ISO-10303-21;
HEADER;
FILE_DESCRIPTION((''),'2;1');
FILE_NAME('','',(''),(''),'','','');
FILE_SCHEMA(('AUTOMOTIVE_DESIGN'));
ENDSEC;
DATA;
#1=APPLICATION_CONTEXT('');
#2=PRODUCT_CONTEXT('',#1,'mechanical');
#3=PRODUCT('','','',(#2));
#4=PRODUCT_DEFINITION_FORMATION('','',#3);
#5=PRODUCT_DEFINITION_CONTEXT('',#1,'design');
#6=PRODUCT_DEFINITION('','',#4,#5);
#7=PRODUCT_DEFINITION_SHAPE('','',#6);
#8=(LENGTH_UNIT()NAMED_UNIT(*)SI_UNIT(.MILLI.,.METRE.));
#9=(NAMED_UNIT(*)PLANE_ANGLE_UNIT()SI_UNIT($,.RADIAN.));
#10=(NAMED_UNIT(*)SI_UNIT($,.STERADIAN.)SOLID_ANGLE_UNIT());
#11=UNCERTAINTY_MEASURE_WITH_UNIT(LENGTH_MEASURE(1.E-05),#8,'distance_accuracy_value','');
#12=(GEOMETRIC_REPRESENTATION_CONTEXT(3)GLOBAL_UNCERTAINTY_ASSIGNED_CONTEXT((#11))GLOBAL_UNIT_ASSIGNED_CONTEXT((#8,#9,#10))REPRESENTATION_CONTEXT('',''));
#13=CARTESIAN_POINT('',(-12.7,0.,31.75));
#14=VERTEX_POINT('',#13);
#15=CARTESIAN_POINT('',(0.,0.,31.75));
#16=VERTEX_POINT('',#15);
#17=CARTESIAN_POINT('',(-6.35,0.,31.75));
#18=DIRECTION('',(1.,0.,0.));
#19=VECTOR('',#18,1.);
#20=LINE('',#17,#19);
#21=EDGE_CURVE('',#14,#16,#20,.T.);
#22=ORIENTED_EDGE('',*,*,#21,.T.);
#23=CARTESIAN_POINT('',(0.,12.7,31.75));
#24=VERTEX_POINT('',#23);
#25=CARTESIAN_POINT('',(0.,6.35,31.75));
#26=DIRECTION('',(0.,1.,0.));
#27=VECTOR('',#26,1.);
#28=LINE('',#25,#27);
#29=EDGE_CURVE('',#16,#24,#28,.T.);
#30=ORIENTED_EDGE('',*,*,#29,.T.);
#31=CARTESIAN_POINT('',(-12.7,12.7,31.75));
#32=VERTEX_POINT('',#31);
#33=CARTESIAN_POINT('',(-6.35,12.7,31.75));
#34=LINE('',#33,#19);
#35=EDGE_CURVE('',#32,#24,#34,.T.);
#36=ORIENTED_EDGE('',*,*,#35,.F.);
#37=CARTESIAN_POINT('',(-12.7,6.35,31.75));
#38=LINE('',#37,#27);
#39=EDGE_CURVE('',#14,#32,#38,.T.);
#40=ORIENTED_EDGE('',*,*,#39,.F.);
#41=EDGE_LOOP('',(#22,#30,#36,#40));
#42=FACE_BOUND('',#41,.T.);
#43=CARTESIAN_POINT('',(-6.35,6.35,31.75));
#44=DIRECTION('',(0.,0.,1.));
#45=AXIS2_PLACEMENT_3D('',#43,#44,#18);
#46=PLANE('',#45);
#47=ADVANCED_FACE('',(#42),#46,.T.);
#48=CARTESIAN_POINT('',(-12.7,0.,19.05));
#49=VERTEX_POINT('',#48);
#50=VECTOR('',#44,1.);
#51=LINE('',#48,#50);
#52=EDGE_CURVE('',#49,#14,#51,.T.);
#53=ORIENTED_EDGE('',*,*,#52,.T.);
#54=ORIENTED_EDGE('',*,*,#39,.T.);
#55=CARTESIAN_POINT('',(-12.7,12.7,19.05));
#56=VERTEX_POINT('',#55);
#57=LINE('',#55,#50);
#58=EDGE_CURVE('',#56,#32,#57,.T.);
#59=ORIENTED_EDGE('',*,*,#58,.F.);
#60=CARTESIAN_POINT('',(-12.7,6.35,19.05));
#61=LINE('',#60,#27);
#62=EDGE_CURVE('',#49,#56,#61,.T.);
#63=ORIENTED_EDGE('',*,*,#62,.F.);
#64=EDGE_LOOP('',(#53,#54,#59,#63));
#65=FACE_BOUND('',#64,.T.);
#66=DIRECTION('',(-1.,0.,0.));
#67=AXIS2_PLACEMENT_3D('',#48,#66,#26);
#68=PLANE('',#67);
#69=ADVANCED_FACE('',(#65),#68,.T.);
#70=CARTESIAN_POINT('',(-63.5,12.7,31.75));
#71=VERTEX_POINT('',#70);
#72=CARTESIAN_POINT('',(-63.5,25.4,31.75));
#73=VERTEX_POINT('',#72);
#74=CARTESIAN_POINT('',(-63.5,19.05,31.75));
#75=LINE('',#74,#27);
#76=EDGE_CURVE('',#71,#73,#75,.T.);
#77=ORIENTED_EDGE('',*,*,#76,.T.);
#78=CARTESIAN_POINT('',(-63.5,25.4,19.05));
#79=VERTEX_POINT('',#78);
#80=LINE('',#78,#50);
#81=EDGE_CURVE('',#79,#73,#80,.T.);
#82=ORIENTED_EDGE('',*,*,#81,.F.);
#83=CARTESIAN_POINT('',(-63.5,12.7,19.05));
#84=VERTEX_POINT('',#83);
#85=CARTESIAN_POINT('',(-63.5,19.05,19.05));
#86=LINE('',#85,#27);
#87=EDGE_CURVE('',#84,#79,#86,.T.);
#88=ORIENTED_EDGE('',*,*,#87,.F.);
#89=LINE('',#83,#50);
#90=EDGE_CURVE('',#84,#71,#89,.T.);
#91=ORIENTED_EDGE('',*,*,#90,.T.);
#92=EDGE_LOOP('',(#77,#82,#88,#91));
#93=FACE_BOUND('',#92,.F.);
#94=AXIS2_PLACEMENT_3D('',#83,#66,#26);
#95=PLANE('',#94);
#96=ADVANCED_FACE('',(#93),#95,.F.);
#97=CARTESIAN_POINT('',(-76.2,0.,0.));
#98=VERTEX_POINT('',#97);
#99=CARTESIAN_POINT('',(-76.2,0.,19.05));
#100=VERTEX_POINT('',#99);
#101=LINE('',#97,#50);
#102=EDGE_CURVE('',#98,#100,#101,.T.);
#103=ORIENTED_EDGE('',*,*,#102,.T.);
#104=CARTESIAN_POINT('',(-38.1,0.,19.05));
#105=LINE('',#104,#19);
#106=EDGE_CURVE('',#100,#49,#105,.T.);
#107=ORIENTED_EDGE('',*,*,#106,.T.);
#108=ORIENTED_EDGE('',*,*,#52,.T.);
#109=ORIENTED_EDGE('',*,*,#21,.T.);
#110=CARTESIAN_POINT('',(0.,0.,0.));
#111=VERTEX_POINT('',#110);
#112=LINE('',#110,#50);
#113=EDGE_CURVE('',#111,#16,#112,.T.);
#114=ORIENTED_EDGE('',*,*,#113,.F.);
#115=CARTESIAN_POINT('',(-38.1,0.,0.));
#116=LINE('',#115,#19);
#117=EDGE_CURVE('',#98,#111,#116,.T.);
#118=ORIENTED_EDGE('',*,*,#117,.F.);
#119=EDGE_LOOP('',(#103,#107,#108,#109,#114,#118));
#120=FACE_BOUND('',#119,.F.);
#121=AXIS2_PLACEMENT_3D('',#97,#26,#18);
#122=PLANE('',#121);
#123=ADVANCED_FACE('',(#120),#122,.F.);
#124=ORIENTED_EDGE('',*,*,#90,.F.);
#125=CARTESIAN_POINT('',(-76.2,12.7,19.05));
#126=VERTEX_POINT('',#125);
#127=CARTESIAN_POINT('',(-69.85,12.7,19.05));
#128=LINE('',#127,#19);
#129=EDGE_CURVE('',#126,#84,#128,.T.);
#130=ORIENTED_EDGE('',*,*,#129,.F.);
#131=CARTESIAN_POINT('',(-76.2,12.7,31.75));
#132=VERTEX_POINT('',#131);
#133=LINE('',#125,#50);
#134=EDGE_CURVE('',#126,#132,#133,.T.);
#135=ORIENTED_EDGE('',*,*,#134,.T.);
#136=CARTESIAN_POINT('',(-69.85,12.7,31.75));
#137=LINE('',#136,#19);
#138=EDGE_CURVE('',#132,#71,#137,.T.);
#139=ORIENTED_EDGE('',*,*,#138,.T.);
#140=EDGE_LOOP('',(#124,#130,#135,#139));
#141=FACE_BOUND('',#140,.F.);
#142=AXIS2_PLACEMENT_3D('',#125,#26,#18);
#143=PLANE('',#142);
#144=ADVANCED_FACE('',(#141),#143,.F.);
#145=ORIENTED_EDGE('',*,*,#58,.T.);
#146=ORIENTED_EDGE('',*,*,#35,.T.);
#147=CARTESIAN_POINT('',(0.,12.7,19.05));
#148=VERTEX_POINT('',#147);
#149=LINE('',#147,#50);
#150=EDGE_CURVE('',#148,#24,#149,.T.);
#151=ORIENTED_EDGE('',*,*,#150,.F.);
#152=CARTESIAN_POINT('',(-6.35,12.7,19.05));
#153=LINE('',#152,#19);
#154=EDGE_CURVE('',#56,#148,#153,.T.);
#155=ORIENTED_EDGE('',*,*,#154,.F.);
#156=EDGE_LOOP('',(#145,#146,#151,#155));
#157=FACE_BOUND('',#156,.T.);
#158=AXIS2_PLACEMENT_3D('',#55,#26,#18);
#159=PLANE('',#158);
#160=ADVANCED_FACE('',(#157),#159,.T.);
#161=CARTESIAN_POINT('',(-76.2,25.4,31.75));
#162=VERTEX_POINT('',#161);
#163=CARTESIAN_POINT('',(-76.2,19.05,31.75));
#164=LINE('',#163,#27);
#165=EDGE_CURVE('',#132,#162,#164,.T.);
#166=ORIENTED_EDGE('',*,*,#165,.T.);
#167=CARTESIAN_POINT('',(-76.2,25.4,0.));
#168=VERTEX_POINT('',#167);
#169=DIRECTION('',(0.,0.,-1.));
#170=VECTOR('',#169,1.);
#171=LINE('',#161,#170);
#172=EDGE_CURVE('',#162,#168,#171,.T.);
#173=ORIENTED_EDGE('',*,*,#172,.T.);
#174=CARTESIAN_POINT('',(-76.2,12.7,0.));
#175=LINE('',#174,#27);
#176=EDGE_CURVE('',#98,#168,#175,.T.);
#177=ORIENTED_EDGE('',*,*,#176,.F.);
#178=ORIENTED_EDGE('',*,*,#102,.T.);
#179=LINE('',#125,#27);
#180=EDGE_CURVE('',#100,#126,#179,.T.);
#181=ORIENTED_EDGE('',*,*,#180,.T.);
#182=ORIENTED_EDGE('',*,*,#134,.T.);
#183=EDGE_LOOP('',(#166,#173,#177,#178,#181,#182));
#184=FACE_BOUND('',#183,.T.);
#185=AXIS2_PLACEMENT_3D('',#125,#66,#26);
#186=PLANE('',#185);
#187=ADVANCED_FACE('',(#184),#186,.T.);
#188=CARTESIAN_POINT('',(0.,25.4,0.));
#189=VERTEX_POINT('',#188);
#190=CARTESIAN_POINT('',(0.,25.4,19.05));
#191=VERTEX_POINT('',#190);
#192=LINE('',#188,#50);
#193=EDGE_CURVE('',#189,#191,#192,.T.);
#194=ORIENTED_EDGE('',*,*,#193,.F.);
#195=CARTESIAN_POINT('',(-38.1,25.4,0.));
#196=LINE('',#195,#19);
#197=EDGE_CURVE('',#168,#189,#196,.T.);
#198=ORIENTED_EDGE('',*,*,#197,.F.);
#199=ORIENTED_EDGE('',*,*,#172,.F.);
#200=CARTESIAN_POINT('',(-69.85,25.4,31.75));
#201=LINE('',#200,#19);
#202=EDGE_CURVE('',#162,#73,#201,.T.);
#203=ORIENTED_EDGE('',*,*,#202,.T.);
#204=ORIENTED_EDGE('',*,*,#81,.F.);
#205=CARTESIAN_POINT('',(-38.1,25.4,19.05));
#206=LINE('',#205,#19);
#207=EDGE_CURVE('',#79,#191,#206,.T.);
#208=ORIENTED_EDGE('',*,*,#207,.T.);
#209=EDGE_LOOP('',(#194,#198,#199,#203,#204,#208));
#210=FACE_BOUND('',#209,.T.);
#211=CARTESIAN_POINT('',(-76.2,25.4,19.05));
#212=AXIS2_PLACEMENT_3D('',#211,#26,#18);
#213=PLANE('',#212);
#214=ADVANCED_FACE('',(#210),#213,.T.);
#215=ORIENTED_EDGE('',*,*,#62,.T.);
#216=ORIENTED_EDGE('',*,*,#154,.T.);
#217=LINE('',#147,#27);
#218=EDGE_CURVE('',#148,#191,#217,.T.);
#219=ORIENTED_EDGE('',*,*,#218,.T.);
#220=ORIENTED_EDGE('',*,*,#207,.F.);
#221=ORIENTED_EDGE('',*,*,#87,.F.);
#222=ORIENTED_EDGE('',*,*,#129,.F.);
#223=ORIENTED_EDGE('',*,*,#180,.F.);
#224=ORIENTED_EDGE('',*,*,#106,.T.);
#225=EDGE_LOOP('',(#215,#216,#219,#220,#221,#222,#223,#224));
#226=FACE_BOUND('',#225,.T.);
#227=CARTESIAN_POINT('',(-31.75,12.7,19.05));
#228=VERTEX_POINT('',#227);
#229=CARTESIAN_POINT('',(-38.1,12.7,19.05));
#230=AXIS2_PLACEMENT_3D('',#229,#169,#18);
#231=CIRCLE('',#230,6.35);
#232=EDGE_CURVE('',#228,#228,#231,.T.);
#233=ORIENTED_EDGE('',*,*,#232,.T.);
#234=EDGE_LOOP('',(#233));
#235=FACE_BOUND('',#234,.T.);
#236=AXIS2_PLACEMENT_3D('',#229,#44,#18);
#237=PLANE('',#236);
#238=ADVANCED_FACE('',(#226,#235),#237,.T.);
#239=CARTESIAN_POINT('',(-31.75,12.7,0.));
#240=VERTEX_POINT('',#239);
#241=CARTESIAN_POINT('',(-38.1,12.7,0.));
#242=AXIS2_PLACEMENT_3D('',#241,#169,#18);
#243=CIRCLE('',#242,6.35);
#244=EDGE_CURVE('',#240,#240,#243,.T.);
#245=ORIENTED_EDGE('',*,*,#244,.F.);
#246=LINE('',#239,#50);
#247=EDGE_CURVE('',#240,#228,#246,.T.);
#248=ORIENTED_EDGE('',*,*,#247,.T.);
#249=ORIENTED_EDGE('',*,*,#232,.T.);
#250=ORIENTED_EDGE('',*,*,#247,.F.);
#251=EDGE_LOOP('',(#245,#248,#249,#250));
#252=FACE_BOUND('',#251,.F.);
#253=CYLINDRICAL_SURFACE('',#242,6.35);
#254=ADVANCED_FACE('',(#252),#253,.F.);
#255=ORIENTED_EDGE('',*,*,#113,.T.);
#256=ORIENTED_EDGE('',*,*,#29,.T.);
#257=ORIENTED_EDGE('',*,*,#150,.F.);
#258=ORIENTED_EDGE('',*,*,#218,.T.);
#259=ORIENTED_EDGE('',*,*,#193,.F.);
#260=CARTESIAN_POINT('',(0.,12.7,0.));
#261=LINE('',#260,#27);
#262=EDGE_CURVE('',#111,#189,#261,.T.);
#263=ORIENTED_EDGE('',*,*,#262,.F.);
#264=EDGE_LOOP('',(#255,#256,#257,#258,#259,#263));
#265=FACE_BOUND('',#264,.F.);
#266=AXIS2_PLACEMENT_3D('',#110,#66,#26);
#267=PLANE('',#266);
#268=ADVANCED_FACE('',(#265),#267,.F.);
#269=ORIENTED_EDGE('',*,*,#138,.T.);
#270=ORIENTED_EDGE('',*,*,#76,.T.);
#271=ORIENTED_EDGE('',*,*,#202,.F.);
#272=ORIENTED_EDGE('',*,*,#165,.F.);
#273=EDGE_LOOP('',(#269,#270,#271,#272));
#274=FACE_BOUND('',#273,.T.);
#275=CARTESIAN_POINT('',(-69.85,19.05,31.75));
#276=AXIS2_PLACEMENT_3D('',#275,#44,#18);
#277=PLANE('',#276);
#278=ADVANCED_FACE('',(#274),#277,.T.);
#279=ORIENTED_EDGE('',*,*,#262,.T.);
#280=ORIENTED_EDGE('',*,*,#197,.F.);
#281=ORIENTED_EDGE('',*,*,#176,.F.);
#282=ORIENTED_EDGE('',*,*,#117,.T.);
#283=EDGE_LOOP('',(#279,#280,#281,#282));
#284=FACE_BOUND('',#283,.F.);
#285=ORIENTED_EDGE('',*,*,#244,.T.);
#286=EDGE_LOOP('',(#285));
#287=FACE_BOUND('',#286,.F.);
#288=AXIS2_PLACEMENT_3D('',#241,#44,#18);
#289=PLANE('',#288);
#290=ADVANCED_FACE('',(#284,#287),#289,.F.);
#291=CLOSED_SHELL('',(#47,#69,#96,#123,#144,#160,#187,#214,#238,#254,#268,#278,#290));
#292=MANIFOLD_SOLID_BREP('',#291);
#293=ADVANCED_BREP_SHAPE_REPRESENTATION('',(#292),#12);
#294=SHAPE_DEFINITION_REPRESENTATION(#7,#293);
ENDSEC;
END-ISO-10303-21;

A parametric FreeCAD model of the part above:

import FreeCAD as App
import Part
import Sketcher
Q = App.Units.Quantity

doc = App.newDocument("Part")
body = doc.addObject("PartDesign::Body", "Body")

# Sketch on XY plane
sketch1 = doc.addObject("Sketcher::SketchObject", "Sketch")
body.addObject(sketch1)
sketch1.AttachmentSupport = (doc.XY_Plane, [""])
sketch1.MapMode = "FlatFace"
sketch1.addGeometry([
    Part.LineSegment(App.Vector(-76.2, 25.4, 0), App.Vector(-76.2, 0, 0)),
    Part.LineSegment(App.Vector(-76.2, 0, 0), App.Vector(0, 0, 0)),
    Part.LineSegment(App.Vector(0, 0, 0), App.Vector(0, 25.4, 0)),
    Part.LineSegment(App.Vector(0, 25.4, 0), App.Vector(-76.2, 25.4, 0)),
], False)
sketch1.addConstraint([
    Sketcher.Constraint("Coincident", 0, 2, 1, 1),
    Sketcher.Constraint("Coincident", 1, 2, 2, 1),
    Sketcher.Constraint("Coincident", 2, 2, 3, 1),
    Sketcher.Constraint("Coincident", 3, 2, 0, 1),
    Sketcher.Constraint("Vertical", 0),
    Sketcher.Constraint("Horizontal", 1),
    Sketcher.Constraint("Vertical", 2),
    Sketcher.Constraint("Horizontal", 3),
    Sketcher.Constraint("Coincident", 1, 2, -1, 1),
    Sketcher.Constraint("DistanceX", 1, 1, 1, 2, Q("3 in")),
    Sketcher.Constraint("DistanceY", 0, 2, 0, 1, Q("1 in")),
])
pad1 = doc.addObject("PartDesign::Pad", "Pad")
body.addObject(pad1)
pad1.Profile = sketch1
pad1.Length = Q("0.75 in")

# Sketch on XY plane
sketch2 = doc.addObject("Sketcher::SketchObject", "Sketch001")
body.addObject(sketch2)
sketch2.AttachmentSupport = (doc.XY_Plane, [""])
sketch2.MapMode = "FlatFace"
sketch2.AttachmentOffset = App.Placement(App.Vector(0, 0, 0.75 * 25.4), App.Rotation())
sketch2.addGeometry([
    Part.LineSegment(App.Vector(-76.2, 25.4, 0), App.Vector(-76.2, 12.7, 0)),  # 0
    Part.LineSegment(App.Vector(-76.2, 12.7, 0), App.Vector(-63.5, 12.7, 0)),  # 1
    Part.LineSegment(App.Vector(-63.5, 12.7, 0), App.Vector(-63.5, 25.4, 0)),  # 2
    Part.LineSegment(App.Vector(-63.5, 25.4, 0), App.Vector(-76.2, 25.4, 0)),  # 3
    Part.LineSegment(App.Vector(-12.7, 12.7, 0), App.Vector(-12.7, 0, 0)),  # 4
    Part.LineSegment(App.Vector(-12.7, 0, 0), App.Vector(0, 0, 0)),  # 5
    Part.LineSegment(App.Vector(0, 0, 0), App.Vector(0, 12.7, 0)),  # 6
    Part.LineSegment(App.Vector(0, 12.7, 0), App.Vector(-12.7, 12.7, 0)),  # 7
], False)
sketch2.addConstraint([
    Sketcher.Constraint("Coincident", 0, 2, 1, 1),
    Sketcher.Constraint("Coincident", 1, 2, 2, 1),
    Sketcher.Constraint("Coincident", 2, 2, 3, 1),
    Sketcher.Constraint("Coincident", 3, 2, 0, 1),
    Sketcher.Constraint("Coincident", 4, 2, 5, 1),
    Sketcher.Constraint("Coincident", 5, 2, 6, 1),
    Sketcher.Constraint("Coincident", 6, 2, 7, 1),
    Sketcher.Constraint("Coincident", 7, 2, 4, 1),
    Sketcher.Constraint("Vertical", 0),
    Sketcher.Constraint("Horizontal", 1),
    Sketcher.Constraint("Vertical", 2),
    Sketcher.Constraint("Horizontal", 3),
    Sketcher.Constraint("Vertical", 4),
    Sketcher.Constraint("Horizontal", 5),
    Sketcher.Constraint("Vertical", 6),
    Sketcher.Constraint("Horizontal", 7),
    Sketcher.Constraint("Coincident", 5, 2, -1, 1),
    Sketcher.Constraint("Horizontal", 1, 2, 6, 2),
    Sketcher.Constraint("Equal", 3, 5),
    Sketcher.Constraint("Equal", 7, 0),
    Sketcher.Constraint("Equal", 2, 4),
    Sketcher.Constraint("DistanceX", 1, 1, 1, 2, Q("0.5 in")),
    Sketcher.Constraint("DistanceX", 0, 2, -1, 1, Q("3 in")),
])
pad2 = doc.addObject("PartDesign::Pad", "Pad001")
body.addObject(pad2)
pad2.Profile = sketch2
pad2.Length = Q("0.5 in")

# Sketch on XY plane
sketch3 = doc.addObject("Sketcher::SketchObject", "Sketch002")
body.addObject(sketch3)
sketch3.AttachmentSupport = (doc.XY_Plane, [""])
sketch3.MapMode = "FlatFace"
sketch3.addGeometry(Part.Circle(App.Vector(-38.1, 12.7, 0), App.Vector(0, 0, 1), 6.35), False)
sketch3.addConstraint([
    Sketcher.Constraint("Diameter", 0, Q("0.5 in")),
    Sketcher.Constraint("DistanceX", 0, 3, -1, 1, Q("1.5 in")),
    Sketcher.Constraint("DistanceY", -1, 1, 0, 3, Q("0.5 in")),
])
pocket1 = doc.addObject("PartDesign::Pocket", "Pocket")
body.addObject(pocket1)
pocket1.Profile = sketch3
pocket1.Length = Q("0.75 in")
pocket1.Reversed = True

doc.recompute()
